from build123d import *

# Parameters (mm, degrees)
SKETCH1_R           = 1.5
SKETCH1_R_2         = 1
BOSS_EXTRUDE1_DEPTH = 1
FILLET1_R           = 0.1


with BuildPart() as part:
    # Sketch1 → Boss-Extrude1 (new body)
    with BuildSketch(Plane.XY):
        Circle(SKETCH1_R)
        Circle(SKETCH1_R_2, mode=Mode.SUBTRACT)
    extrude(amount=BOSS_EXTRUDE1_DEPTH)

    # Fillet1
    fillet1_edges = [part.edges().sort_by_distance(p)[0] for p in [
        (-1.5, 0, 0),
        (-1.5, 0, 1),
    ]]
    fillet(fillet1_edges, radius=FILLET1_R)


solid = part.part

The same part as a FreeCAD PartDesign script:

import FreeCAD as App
import Part
import Sketcher

V = App.Vector


def edges_at(feature, points):
    """Names of the edges that pass closest to the given points."""
    edges = feature.Shape.Edges
    near = lambda p: min(range(len(edges)), key=lambda i: edges[i].distToShape(Part.Vertex(*p))[0])
    return sorted({f"Edge{near(p) + 1}" for p in points})

doc = App.newDocument("Part")
body = doc.addObject("PartDesign::Body", "Body")

sketch1 = body.newObject("Sketcher::SketchObject", "Sketch")
sketch1.AttachmentSupport = (doc.getObject("XY_Plane"), [""])
sketch1.MapMode = "FlatFace"
sketch1.addGeometry(Part.Circle(V(0, 0, 0), V(0, 0, 1), 1.5), False)
sketch1.addGeometry(Part.Circle(V(0, 0, 0), V(0, 0, 1), 1), False)
sketch1.addConstraint(Sketcher.Constraint("Coincident", 0, 3, -1, 1))
sketch1.addConstraint(Sketcher.Constraint("Coincident", 1, 3, -1, 1))
sketch1.addConstraint(Sketcher.Constraint("Diameter", 0, 3.0))
sketch1.addConstraint(Sketcher.Constraint("Diameter", 1, 2.0))
pad1 = body.newObject("PartDesign::Pad", "Pad")
pad1.Profile = sketch1
pad1.Length = 1
doc.recompute()

fillet = body.newObject("PartDesign::Fillet", "Fillet")
fillet.Base = (pad1, edges_at(pad1, [(-1.5, 0, 0), (-1.5, 0, 1)]))
fillet.Radius = 0.1

doc.recompute()
